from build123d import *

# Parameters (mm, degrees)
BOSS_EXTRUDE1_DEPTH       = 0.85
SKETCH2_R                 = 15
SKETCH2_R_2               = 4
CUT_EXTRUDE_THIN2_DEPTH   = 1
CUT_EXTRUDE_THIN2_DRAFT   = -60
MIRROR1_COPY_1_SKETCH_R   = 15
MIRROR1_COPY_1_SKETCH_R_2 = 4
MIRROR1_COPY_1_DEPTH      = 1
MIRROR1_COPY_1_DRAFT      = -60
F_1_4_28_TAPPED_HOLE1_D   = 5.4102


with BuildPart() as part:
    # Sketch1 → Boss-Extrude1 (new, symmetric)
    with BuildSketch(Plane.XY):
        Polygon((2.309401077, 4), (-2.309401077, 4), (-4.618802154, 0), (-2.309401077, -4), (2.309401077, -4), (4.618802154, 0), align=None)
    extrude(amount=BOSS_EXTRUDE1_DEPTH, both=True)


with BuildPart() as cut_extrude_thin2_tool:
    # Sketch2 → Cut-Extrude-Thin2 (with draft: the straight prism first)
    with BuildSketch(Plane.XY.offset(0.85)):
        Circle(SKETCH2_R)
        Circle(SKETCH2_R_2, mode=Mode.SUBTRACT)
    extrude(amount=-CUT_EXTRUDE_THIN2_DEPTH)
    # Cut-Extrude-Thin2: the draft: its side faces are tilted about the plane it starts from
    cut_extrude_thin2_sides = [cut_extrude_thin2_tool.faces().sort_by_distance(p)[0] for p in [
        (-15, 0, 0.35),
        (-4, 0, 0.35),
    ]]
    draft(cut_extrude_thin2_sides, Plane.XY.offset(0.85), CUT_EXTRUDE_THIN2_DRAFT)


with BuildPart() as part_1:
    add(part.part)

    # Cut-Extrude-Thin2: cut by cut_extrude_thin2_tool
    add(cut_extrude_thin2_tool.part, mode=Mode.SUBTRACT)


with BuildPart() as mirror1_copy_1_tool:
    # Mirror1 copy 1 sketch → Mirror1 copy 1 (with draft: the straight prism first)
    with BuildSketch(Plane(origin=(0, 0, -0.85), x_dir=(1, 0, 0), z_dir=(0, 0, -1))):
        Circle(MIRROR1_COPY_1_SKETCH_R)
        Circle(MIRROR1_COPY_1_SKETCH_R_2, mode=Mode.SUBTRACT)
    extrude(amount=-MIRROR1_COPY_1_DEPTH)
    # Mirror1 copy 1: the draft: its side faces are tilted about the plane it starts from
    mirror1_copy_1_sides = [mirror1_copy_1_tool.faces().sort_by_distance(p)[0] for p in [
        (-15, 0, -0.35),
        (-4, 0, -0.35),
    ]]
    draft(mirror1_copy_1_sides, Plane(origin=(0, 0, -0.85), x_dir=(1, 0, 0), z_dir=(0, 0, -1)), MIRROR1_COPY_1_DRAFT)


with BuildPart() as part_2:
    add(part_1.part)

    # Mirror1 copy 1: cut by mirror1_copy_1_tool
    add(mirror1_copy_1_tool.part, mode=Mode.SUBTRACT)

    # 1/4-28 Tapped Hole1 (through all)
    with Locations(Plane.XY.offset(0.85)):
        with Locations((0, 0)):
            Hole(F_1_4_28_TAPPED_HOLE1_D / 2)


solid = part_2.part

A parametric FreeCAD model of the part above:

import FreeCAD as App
import Part
import Sketcher

V = App.Vector
Q = App.Units.Quantity


def faces_at(feature, points):
    """Names of the faces that lie closest to the given points."""
    faces = feature.Shape.Faces
    near = lambda p: min(range(len(faces)), key=lambda i: faces[i].distToShape(Part.Vertex(*p))[0])
    return sorted({f"Face{near(p) + 1}" for p in points})


def add_polygon(sketch, points):
    """Adds a closed chain of lines whose ends are joined by coincident constraints."""
    first, n = sketch.GeometryCount, len(points)
    for a, b in zip(points, points[1:] + points[:1]):
        sketch.addGeometry(Part.LineSegment(App.Vector(*a, 0), App.Vector(*b, 0)), False)
    for i in range(n):
        sketch.addConstraint(Sketcher.Constraint("Coincident", first + i, 2, first + (i + 1) % n, 1))

doc = App.newDocument("Part")
params = doc.addObject("Spreadsheet::Sheet", "Params")
for row, (alias, value) in enumerate([
    ("pad1_length", "1.7 mm"),
    ("sketch2_diameter", "30 mm"),
    ("sketch2_diameter2", "8 mm"),
    ("pad2_length", "1 mm"),
    ("draft_angle", "60 deg"),
    ("sketch3_diameter", "30 mm"),
    ("sketch3_diameter2", "8 mm"),
    ("pad3_length", "1 mm"),
    ("draft2_angle", "60 deg"),
    ("hole_diameter", "5.4102 mm"),
], start=1):
    params.set(f"A{row}", alias)
    params.set(f"B{row}", "=" + value)
    params.setAlias(f"B{row}", alias)

body = doc.addObject("PartDesign::Body", "Body")

sketch1 = body.newObject("Sketcher::SketchObject", "Sketch")
sketch1.AttachmentSupport = (doc.getObject("XY_Plane"), [""])
sketch1.MapMode = "FlatFace"
add_polygon(sketch1, [(2.309401, 4), (-2.309401, 4), (-4.618802, 0), (-2.309401, -4), (2.309401, -4), (4.618802, 0)])
sketch1.addConstraint(Sketcher.Constraint("Horizontal", 0))
sketch1.addConstraint(Sketcher.Constraint("Horizontal", 3))
sketch1.addConstraint(Sketcher.Constraint("Symmetric", 0, 2, 3, 2, -1, 1))
sketch1.addConstraint(Sketcher.Constraint("Symmetric", 1, 2, 4, 2, -1, 1))
sketch1.addConstraint(Sketcher.Constraint("PointOnObject", 1, 2, -1))
sketch1.addConstraint(Sketcher.Constraint("Parallel", 2, 5))
sketch1.addConstraint(Sketcher.Constraint("Vertical", 0, 2, 2, 2))
sketch1.addConstraint(Sketcher.Constraint("Angle", 1, Q("-120 deg")))
sketch1.addConstraint(Sketcher.Constraint("DistanceY", -1, 1, 0, 2, Q("4 mm")))
sketch1.addConstraint(Sketcher.Constraint("DistanceX", 0, 2, -1, 1, Q("2.309401 mm")))
pad1 = body.newObject("PartDesign::Pad", "Pad")
pad1.Profile = sketch1
pad1.setExpression("Length", "Params.pad1_length")
pad1.Midplane = True
body2 = doc.addObject("PartDesign::Body", "Body001")

sketch2 = body2.newObject("Sketcher::SketchObject", "Sketch001")
sketch2.AttachmentSupport = (doc.getObject("XY_Plane001"), [""])
sketch2.MapMode = "FlatFace"
sketch2.AttachmentOffset = App.Placement(V(0, 0, 0.85), App.Rotation())
sketch2.addGeometry(Part.Circle(V(0, 0, 0), V(0, 0, 1), 15), False)
sketch2.addGeometry(Part.Circle(V(0, 0, 0), V(0, 0, 1), 4), False)
sketch2.addConstraint(Sketcher.Constraint("Coincident", 0, 3, -1, 1))
sketch2.addConstraint(Sketcher.Constraint("Coincident", 1, 3, -1, 1))
sketch2.addConstraint(Sketcher.Constraint("Diameter", 0, Q("30 mm")))
sketch2.addConstraint(Sketcher.Constraint("Diameter", 1, Q("8 mm")))
sketch2.setExpression("Constraints[2]", "Params.sketch2_diameter")
sketch2.setExpression("Constraints[3]", "Params.sketch2_diameter2")
pad2 = body2.newObject("PartDesign::Pad", "Pad001")
pad2.Profile = sketch2
pad2.setExpression("Length", "Params.pad2_length")
pad2.Reversed = True
doc.recompute()

datumplane = body2.newObject("PartDesign::Plane", "DatumPlane")
datumplane.AttachmentSupport = (doc.getObject("XY_Plane001"), [""])
datumplane.MapMode = "FlatFace"
datumplane.AttachmentOffset = App.Placement(V(0, 0, 0.85), App.Rotation())
draft = body2.newObject("PartDesign::Draft", "Draft")
draft.Base = (pad2, faces_at(pad2, [(-15, 0, 0.35), (-4, 0, 0.35)]))
draft.NeutralPlane = (datumplane, [""])
draft.setExpression("Angle", "Params.draft_angle")
draft.Reversed = True
doc.recompute()

boolean = body.newObject("PartDesign::Boolean", "Boolean")
boolean.Type = "Cut"
boolean.addObjects([body2])
body3 = doc.addObject("PartDesign::Body", "Body002")

sketch3 = body3.newObject("Sketcher::SketchObject", "Sketch002")
sketch3.AttachmentSupport = (doc.getObject("XY_Plane002"), [""])
sketch3.MapMode = "FlatFace"
sketch3.AttachmentOffset = App.Placement(V(0, 0, -0.85), App.Rotation())
sketch3.addGeometry(Part.Circle(V(0, 0, 0), V(0, 0, 1), 15), False)
sketch3.addGeometry(Part.Circle(V(0, 0, 0), V(0, 0, 1), 4), False)
sketch3.addConstraint(Sketcher.Constraint("Coincident", 0, 3, -1, 1))
sketch3.addConstraint(Sketcher.Constraint("Coincident", 1, 3, -1, 1))
sketch3.addConstraint(Sketcher.Constraint("Diameter", 0, Q("30 mm")))
sketch3.addConstraint(Sketcher.Constraint("Diameter", 1, Q("8 mm")))
sketch3.setExpression("Constraints[2]", "Params.sketch3_diameter")
sketch3.setExpression("Constraints[3]", "Params.sketch3_diameter2")
pad3 = body3.newObject("PartDesign::Pad", "Pad002")
pad3.Profile = sketch3
pad3.setExpression("Length", "Params.pad3_length")
doc.recompute()

datumplane2 = body3.newObject("PartDesign::Plane", "DatumPlane001")
datumplane2.AttachmentSupport = (doc.getObject("XY_Plane002"), [""])
datumplane2.MapMode = "FlatFace"
datumplane2.AttachmentOffset = App.Placement(V(0, 0, -0.85), App.Rotation())
draft2 = body3.newObject("PartDesign::Draft", "Draft001")
draft2.Base = (pad3, faces_at(pad3, [(-15, 0, -0.35), (-4, 0, -0.35)]))
draft2.NeutralPlane = (datumplane2, [""])
draft2.setExpression("Angle", "Params.draft2_angle")
draft2.Reversed = False
doc.recompute()

boolean2 = body.newObject("PartDesign::Boolean", "Boolean001")
boolean2.Type = "Cut"
boolean2.addObjects([body3])

sketch4 = body.newObject("Sketcher::SketchObject", "Sketch003")
sketch4.AttachmentSupport = (doc.getObject("XY_Plane"), [""])
sketch4.MapMode = "FlatFace"
sketch4.AttachmentOffset = App.Placement(V(0, 0, 0.85), App.Rotation())
sketch4.addGeometry(Part.Circle(V(0, 0, 0), V(0, 0, 1), 2.7051), False)
sketch4.addConstraint(Sketcher.Constraint("Coincident", 0, 3, -1, 1))
sketch4.addConstraint(Sketcher.Constraint("Diameter", 0, Q("5.4102 mm")))
doc.recompute()
hole = body.newObject("PartDesign::Hole", "Hole")
hole.Profile = sketch4
hole.ThreadType = "None"
hole.setExpression("Diameter", "Params.hole_diameter")
hole.DepthType = "ThroughAll"

doc.recompute()
